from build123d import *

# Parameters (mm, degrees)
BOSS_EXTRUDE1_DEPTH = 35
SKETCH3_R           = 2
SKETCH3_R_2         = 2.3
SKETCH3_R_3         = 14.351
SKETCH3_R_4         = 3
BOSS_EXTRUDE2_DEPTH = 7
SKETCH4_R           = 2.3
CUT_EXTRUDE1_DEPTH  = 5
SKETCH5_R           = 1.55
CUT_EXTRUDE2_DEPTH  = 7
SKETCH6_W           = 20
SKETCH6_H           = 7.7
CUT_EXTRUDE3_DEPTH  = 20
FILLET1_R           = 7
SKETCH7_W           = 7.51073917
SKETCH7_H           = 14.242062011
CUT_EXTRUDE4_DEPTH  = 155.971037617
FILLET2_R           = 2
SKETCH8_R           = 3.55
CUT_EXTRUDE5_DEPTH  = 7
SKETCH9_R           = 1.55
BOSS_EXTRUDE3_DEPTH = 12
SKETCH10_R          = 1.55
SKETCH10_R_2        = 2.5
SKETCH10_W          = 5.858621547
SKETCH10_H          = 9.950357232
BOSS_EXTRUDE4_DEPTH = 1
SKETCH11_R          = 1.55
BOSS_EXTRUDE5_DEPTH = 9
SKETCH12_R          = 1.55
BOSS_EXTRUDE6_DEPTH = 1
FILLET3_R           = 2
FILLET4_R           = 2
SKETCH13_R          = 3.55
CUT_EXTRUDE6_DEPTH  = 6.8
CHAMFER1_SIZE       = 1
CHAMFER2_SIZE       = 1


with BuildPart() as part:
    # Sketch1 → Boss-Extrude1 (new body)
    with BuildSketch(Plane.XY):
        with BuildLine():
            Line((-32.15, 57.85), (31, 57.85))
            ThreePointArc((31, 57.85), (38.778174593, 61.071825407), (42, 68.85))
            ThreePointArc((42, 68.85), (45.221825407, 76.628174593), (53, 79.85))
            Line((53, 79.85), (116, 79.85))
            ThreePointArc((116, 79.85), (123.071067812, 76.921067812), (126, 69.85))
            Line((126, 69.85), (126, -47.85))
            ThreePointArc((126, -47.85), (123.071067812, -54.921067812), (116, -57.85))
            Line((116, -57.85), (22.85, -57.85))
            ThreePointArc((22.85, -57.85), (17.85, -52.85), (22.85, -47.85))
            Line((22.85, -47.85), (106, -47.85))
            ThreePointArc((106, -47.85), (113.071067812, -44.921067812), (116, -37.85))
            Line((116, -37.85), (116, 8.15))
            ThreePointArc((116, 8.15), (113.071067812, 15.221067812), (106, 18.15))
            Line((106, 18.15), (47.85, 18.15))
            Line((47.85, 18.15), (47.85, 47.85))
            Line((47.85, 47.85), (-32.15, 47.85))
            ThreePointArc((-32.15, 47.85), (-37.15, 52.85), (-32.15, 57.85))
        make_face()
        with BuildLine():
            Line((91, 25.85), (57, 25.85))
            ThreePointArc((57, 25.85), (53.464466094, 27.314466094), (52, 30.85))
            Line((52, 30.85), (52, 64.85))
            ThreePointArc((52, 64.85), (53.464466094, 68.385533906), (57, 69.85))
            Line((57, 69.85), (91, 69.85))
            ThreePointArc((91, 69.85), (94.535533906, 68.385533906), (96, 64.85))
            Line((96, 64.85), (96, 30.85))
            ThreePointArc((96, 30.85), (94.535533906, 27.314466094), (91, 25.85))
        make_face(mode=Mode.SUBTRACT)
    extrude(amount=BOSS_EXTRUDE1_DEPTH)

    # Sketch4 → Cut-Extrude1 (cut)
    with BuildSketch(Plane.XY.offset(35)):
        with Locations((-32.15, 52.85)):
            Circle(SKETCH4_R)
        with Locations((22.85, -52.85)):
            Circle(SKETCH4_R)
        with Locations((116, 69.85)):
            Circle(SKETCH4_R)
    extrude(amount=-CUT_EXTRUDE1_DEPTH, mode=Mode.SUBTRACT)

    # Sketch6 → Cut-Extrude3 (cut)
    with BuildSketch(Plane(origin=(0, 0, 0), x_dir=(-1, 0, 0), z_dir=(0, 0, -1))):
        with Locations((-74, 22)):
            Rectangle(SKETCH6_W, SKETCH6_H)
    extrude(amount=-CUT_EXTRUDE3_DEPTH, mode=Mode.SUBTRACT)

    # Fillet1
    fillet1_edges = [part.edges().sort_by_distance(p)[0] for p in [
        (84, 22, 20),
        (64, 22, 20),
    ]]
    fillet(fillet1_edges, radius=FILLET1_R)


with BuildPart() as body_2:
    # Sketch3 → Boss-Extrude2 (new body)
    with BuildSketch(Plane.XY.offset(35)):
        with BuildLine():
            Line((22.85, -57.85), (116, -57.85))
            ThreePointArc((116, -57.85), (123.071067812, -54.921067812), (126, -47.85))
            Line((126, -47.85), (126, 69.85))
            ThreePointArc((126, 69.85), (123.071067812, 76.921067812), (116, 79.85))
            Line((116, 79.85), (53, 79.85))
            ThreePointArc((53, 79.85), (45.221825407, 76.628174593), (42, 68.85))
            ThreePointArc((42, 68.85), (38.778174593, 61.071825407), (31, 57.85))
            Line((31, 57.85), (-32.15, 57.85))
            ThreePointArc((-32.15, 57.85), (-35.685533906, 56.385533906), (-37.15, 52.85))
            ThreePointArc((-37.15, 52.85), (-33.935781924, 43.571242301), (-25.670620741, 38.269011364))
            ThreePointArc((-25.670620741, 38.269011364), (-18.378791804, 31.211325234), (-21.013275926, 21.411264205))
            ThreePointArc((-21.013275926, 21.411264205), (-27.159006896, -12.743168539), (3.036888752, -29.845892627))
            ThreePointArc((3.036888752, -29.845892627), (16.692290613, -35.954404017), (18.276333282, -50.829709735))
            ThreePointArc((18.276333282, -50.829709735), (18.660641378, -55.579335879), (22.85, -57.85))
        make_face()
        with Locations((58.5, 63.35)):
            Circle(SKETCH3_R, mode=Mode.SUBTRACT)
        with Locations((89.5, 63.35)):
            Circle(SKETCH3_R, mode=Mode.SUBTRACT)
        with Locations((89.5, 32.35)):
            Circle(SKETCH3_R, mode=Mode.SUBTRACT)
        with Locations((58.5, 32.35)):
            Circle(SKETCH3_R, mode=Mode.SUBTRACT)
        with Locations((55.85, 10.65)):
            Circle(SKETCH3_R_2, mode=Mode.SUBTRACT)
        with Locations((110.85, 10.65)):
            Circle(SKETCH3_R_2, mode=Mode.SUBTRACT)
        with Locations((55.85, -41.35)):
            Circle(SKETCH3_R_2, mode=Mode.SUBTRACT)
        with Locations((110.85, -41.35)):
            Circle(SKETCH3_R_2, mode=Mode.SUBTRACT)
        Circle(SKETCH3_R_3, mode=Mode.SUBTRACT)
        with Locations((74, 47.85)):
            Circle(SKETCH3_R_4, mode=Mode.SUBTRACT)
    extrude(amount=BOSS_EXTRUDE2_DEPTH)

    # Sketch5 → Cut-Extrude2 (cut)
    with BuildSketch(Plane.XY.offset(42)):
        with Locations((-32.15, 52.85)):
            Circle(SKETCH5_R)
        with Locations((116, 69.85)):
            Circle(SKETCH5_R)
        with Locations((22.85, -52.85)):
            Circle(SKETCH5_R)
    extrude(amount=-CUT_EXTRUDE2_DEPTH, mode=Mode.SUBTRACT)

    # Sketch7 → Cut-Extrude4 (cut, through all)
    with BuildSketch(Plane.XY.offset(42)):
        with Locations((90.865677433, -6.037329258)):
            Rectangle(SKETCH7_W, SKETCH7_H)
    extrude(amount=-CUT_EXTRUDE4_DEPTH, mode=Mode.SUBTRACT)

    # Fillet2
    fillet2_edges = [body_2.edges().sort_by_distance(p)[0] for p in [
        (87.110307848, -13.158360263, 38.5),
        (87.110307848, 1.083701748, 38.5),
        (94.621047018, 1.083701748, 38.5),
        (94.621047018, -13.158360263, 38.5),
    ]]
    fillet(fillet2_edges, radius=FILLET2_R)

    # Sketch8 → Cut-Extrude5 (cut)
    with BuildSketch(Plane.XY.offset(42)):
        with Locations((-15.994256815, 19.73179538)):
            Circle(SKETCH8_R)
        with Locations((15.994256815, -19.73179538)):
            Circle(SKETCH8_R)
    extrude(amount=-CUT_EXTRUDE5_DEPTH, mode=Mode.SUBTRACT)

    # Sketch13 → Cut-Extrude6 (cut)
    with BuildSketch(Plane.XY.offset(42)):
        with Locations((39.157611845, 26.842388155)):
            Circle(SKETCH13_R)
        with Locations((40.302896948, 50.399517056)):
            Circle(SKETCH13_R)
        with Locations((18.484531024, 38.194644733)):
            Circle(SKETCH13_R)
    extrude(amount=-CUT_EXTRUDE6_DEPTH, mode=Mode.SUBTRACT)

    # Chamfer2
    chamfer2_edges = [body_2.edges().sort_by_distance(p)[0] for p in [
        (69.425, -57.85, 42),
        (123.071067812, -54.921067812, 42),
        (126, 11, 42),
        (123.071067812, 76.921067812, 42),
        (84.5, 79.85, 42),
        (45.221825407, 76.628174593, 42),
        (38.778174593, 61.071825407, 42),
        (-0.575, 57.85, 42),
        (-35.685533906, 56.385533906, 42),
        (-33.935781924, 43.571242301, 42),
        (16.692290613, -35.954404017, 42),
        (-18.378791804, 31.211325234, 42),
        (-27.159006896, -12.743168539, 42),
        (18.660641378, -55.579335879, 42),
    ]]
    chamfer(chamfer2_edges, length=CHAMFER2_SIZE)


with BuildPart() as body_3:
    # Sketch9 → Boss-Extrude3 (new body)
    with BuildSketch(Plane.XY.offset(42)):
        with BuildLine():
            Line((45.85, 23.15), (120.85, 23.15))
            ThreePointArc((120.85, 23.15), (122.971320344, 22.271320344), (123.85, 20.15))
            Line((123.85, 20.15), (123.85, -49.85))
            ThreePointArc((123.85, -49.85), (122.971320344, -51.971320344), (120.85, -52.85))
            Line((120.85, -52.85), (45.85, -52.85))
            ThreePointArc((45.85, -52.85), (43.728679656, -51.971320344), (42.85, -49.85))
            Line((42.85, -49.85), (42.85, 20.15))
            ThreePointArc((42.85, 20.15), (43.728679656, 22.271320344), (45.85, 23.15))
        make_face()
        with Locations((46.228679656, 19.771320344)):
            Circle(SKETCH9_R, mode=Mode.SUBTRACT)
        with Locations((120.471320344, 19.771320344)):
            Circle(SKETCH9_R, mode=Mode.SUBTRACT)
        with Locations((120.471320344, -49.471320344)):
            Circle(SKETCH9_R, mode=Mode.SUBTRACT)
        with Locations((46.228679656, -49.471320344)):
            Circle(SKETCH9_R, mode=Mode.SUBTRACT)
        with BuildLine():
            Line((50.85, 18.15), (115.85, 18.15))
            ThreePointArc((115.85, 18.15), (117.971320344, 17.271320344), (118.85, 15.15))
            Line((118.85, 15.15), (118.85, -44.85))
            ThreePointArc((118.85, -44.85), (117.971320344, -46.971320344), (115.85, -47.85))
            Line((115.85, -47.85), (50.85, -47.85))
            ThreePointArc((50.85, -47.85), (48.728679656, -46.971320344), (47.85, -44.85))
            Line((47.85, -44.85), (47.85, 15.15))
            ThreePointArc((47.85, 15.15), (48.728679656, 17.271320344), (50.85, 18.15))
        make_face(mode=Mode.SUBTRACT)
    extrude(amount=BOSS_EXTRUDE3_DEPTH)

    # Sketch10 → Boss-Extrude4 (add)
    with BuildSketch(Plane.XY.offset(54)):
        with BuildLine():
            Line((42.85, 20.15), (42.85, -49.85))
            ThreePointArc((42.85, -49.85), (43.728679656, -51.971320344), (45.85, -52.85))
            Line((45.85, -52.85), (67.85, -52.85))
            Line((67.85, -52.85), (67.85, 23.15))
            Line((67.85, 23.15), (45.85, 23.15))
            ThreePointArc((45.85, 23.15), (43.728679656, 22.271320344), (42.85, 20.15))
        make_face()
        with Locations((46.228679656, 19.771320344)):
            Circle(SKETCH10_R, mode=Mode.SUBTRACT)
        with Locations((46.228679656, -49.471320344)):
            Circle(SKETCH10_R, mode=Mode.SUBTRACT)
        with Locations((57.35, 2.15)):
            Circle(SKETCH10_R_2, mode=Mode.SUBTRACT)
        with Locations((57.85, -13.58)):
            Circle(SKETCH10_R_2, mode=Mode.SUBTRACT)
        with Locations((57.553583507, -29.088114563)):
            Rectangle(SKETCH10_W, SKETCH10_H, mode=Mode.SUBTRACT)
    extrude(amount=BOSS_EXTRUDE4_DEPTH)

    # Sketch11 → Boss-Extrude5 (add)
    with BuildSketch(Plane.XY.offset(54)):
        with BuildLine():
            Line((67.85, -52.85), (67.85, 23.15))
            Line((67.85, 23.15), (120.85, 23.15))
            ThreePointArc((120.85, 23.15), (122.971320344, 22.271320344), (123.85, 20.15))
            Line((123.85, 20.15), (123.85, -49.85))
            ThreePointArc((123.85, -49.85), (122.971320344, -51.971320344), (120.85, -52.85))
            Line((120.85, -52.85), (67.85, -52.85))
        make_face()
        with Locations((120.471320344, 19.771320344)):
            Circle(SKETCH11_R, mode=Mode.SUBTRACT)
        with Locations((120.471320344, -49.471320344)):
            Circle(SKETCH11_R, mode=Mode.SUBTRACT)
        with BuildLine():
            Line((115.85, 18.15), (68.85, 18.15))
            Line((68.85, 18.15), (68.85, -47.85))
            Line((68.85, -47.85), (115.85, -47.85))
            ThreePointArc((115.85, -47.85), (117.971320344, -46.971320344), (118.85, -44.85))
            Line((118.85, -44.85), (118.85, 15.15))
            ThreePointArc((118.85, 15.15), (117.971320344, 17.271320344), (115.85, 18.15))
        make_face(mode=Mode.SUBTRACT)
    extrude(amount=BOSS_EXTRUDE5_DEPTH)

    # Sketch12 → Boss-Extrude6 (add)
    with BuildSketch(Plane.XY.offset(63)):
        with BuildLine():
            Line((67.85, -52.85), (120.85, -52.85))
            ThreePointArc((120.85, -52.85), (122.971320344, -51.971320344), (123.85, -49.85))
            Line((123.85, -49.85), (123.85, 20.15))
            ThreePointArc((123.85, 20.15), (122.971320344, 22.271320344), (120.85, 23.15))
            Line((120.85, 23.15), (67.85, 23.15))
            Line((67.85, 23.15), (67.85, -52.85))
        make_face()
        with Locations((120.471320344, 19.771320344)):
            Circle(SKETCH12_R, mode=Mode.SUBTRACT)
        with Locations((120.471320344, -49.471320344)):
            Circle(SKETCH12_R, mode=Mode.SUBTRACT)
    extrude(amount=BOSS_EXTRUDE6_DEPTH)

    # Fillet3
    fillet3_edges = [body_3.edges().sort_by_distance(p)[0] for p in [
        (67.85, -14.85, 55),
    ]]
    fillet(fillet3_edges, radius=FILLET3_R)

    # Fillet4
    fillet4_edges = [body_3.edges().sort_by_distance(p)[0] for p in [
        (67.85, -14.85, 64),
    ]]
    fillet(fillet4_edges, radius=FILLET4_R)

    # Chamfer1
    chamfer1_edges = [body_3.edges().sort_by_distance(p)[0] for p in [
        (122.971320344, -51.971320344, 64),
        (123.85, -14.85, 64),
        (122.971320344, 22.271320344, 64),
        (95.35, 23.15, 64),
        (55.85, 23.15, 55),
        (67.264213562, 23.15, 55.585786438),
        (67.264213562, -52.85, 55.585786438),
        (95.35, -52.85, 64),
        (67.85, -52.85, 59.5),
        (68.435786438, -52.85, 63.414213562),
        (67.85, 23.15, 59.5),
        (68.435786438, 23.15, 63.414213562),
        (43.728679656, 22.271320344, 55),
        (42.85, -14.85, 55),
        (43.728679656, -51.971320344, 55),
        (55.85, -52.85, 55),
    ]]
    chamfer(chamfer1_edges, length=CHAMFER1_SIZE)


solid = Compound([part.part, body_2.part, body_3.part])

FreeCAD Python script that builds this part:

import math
import FreeCAD as App
import Part
import Sketcher
from FreeCAD import Vector
Q = App.Units.Quantity


def edges_at(feature, points):
    """Names of the edges that pass closest to the given points."""
    edges = feature.Shape.Edges
    near = lambda p: min(range(len(edges)), key=lambda i: edges[i].distToShape(Part.Vertex(*p))[0])
    return sorted({f"Edge{near(p) + 1}" for p in points})

doc = App.newDocument("Part")
params = doc.addObject("Spreadsheet::Sheet", "Params")
for row, (alias, value) in enumerate([
    ("sketch1_radius", "5 mm"),
    ("sketch1_radius2", "11 mm"),
    ("sketch1_width", "80 mm"),
    ("sketch1_width2", "63 mm"),
    ("sketch1_width3", "34 mm"),
    ("pad1_length", "35 mm"),
    ("sketch2_diameter", "4.6 mm"),
    ("pocket1_length", "5 mm"),
    ("sketch3_width", "20 mm"),
    ("sketch3_height", "7.7 mm"),
    ("pocket2_length", "20 mm"),
    ("fillet_radius", "7 mm"),
    ("sketch4_diameter", "4 mm"),
    ("sketch4_diameter2", "6 mm"),
    ("sketch4_radius", "10 mm"),
    ("sketch4_radius2", "11 mm"),
    ("sketch4_radius3", "5 mm"),
    ("pad2_length", "7 mm"),
    ("sketch5_diameter", "3.1 mm"),
    ("pocket3_length", "7 mm"),
    ("fillet2_radius", "2 mm"),
    ("sketch7_diameter", "7.1 mm"),
    ("pocket5_length", "7 mm"),
    ("sketch8_diameter", "7.1 mm"),
    ("pocket6_length", "6.8 mm"),
    ("chamfer_size", "1 mm"),
    ("sketch9_radius", "3 mm"),
    ("sketch9_diameter", "3.1 mm"),
    ("sketch9_width", "75 mm"),
    ("sketch9_width2", "65 mm"),
    ("sketch9_height", "70 mm"),
    ("pad3_length", "12 mm"),
    ("sketch10_diameter", "5 mm"),
    ("sketch10_radius", "3 mm"),
    ("sketch10_diameter2", "3.1 mm"),
    ("sketch10_width", "22 mm"),
    ("sketch10_height", "70 mm"),
    ("pad4_length", "1 mm"),
    ("sketch11_radius", "3 mm"),
    ("sketch11_diameter", "3.1 mm"),
    ("sketch11_width", "53 mm"),
    ("sketch11_width2", "47 mm"),
    ("sketch11_height", "76 mm"),
    ("pad5_length", "9 mm"),
    ("sketch12_radius", "3 mm"),
    ("sketch12_diameter", "3.1 mm"),
    ("sketch12_width", "53 mm"),
    ("sketch12_height", "70 mm"),
    ("pad6_length", "1 mm"),
    ("fillet3_radius", "2 mm"),
    ("fillet4_radius", "2 mm"),
    ("chamfer2_size", "1 mm"),
], start=1):
    params.set(f"A{row}", alias)
    params.set(f"B{row}", "=" + value)
    params.setAlias(f"B{row}", alias)

body = doc.addObject("PartDesign::Body", "Body")

sketch1 = body.newObject("Sketcher::SketchObject", "Sketch")
sketch1.AttachmentSupport = (doc.getObject("XY_Plane"), [""])
sketch1.MapMode = "FlatFace"
sketch1.addGeometry([
    Part.LineSegment(Vector(31, 58, 0), Vector(-32, 58, 0)),
    Part.ArcOfCircle(Part.Circle(Vector(-32, 53, 0), Vector(0, 0, 1), 5), math.radians(90), math.radians(270)),
    Part.LineSegment(Vector(-32, 48, 0), Vector(48, 48, 0)),
    Part.LineSegment(Vector(48, 48, 0), Vector(48, 18, 0)),
    Part.LineSegment(Vector(48, 18, 0), Vector(106, 18, 0)),
    Part.ArcOfCircle(Part.Circle(Vector(106, 8, 0), Vector(0, 0, 1), 10), math.radians(0), math.radians(90)),
    Part.LineSegment(Vector(116, 8, 0), Vector(116, -38, 0)),
    Part.ArcOfCircle(Part.Circle(Vector(106, -38, 0), Vector(0, 0, 1), 10), math.radians(-90), math.radians(0)),
    Part.LineSegment(Vector(106, -48, 0), Vector(23, -48, 0)),
    Part.ArcOfCircle(Part.Circle(Vector(23, -53, 0), Vector(0, 0, 1), 5), math.radians(90), math.radians(270)),
    Part.LineSegment(Vector(23, -58, 0), Vector(116, -58, 0)),
    Part.ArcOfCircle(Part.Circle(Vector(116, -48, 0), Vector(0, 0, 1), 10), math.radians(-90), math.radians(0)),
    Part.LineSegment(Vector(126, -48, 0), Vector(126, 70, 0)),
    Part.ArcOfCircle(Part.Circle(Vector(116, 70, 0), Vector(0, 0, 1), 10), math.radians(0), math.radians(90)),
    Part.LineSegment(Vector(116, 80, 0), Vector(53, 80, 0)),
    Part.ArcOfCircle(Part.Circle(Vector(53, 69, 0), Vector(0, 0, 1), 11), math.radians(90), math.radians(180)),
    Part.ArcOfCircle(Part.Circle(Vector(31, 69, 0), Vector(0, 0, 1), 11), math.radians(-90), math.radians(0)),
    Part.LineSegment(Vector(91, 26, 0), Vector(57, 26, 0)),
    Part.ArcOfCircle(Part.Circle(Vector(57, 31, 0), Vector(0, 0, 1), 5), math.radians(180), math.radians(270)),
    Part.LineSegment(Vector(52, 31, 0), Vector(52, 65, 0)),
    Part.ArcOfCircle(Part.Circle(Vector(57, 65, 0), Vector(0, 0, 1), 5), math.radians(90), math.radians(180)),
    Part.LineSegment(Vector(57, 70, 0), Vector(91, 70, 0)),
    Part.ArcOfCircle(Part.Circle(Vector(91, 65, 0), Vector(0, 0, 1), 5), math.radians(0), math.radians(90)),
    Part.LineSegment(Vector(96, 65, 0), Vector(96, 31, 0)),
    Part.ArcOfCircle(Part.Circle(Vector(91, 31, 0), Vector(0, 0, 1), 5), math.radians(-90), math.radians(0)),
], False)
sketch1.addConstraint([
    Sketcher.Constraint("Tangent", 0, 2, 1, 1),
    Sketcher.Constraint("Tangent", 1, 2, 2, 1),
    Sketcher.Constraint("Coincident", 2, 2, 3, 1),
    Sketcher.Constraint("Coincident", 3, 2, 4, 1),
    Sketcher.Constraint("Tangent", 4, 2, 5, 2),
    Sketcher.Constraint("Tangent", 5, 1, 6, 1),
    Sketcher.Constraint("Tangent", 6, 2, 7, 2),
    Sketcher.Constraint("Tangent", 7, 1, 8, 1),
    Sketcher.Constraint("Tangent", 8, 2, 9, 1),
    Sketcher.Constraint("Tangent", 9, 2, 10, 1),
    Sketcher.Constraint("Tangent", 10, 2, 11, 1),
    Sketcher.Constraint("Tangent", 11, 2, 12, 1),
    Sketcher.Constraint("Tangent", 12, 2, 13, 1),
    Sketcher.Constraint("Tangent", 13, 2, 14, 1),
    Sketcher.Constraint("Tangent", 14, 2, 15, 1),
    Sketcher.Constraint("Tangent", 15, 2, 16, 2),
    Sketcher.Constraint("Tangent", 16, 1, 0, 1),
    Sketcher.Constraint("Tangent", 17, 2, 18, 2),
    Sketcher.Constraint("Tangent", 18, 1, 19, 1),
    Sketcher.Constraint("Tangent", 19, 2, 20, 2),
    Sketcher.Constraint("Tangent", 20, 1, 21, 1),
    Sketcher.Constraint("Tangent", 21, 2, 22, 2),
    Sketcher.Constraint("Tangent", 22, 1, 23, 1),
    Sketcher.Constraint("Tangent", 23, 2, 24, 2),
    Sketcher.Constraint("Tangent", 24, 1, 17, 1),
    Sketcher.Constraint("Horizontal", 0),
    Sketcher.Constraint("Horizontal", 2),
    Sketcher.Constraint("Vertical", 3),
    Sketcher.Constraint("Horizontal", 4),
    Sketcher.Constraint("Vertical", 6),
    Sketcher.Constraint("Horizontal", 8),
    Sketcher.Constraint("Horizontal", 10),
    Sketcher.Constraint("Vertical", 12),
    Sketcher.Constraint("Horizontal", 14),
    Sketcher.Constraint("Horizontal", 17),
    Sketcher.Constraint("Vertical", 19),
    Sketcher.Constraint("Horizontal", 21),
    Sketcher.Constraint("Vertical", 23),
    Sketcher.Constraint("Equal", 5, 7),
    Sketcher.Constraint("Equal", 1, 9),
    Sketcher.Constraint("Equal", 7, 11),
    Sketcher.Constraint("Equal", 11, 13),
    Sketcher.Constraint("Equal", 15, 16),
    Sketcher.Constraint("Equal", 9, 18),
    Sketcher.Constraint("Equal", 18, 20),
    Sketcher.Constraint("Equal", 20, 22),
    Sketcher.Constraint("Equal", 22, 24),
    Sketcher.Constraint("Horizontal", 15, 3, 16, 3),
    Sketcher.Constraint("Horizontal", 11, 3, 7, 1),
    Sketcher.Constraint("Horizontal", 12, 2, 20, 1),
    Sketcher.Constraint("Vertical", 13, 3, 5, 1),
    Sketcher.Constraint("Equal", 21, 19),
    Sketcher.Constraint("Radius", 1, Q("5 mm")),
    Sketcher.Constraint("Radius", 15, Q("11 mm")),
    Sketcher.Constraint("DistanceX", 2, 1, 2, 2, Q("80 mm")),
    Sketcher.Constraint("DistanceX", 14, 2, 14, 1, Q("63 mm")),
    Sketcher.Constraint("DistanceX", 17, 2, 17, 1, Q("34 mm")),
    Sketcher.Constraint("DistanceY", 6, 2, 6, 1, Q("46 mm")),
    Sketcher.Constraint("DistanceY", 3, 2, 3, 1, Q("29.7 mm")),
    Sketcher.Constraint("DistanceX", -1, 1, 5, 3, Q("106 mm")),
    Sketcher.Constraint("DistanceX", -1, 1, 18, 3, Q("57 mm")),
    Sketcher.Constraint("DistanceX", 1, 3, 9, 3, Q("55 mm")),
    Sketcher.Constraint("DistanceX", 0, 2, 0, 1, Q("63.15 mm")),
    Sketcher.Constraint("DistanceY", -1, 1, 1, 3, Q("52.85 mm")),
])
sketch1.setExpression("Constraints[52]", "Params.sketch1_radius")
sketch1.setExpression("Constraints[53]", "Params.sketch1_radius2")
sketch1.setExpression("Constraints[54]", "Params.sketch1_width")
sketch1.setExpression("Constraints[55]", "Params.sketch1_width2")
sketch1.setExpression("Constraints[56]", "Params.sketch1_width3")
pad1 = body.newObject("PartDesign::Pad", "Pad")
pad1.Profile = sketch1
pad1.setExpression("Length", "Params.pad1_length")

sketch2 = body.newObject("Sketcher::SketchObject", "Sketch001")
sketch2.AttachmentSupport = (doc.getObject("XY_Plane"), [""])
sketch2.MapMode = "FlatFace"
sketch2.AttachmentOffset = App.Placement(Vector(0, 0, 35), App.Rotation())
sketch2.addGeometry([
    Part.Circle(Vector(-32.1, 52.9, 0), Vector(0, 0, 1), 2.3),
    Part.Circle(Vector(22.9, -52.9, 0), Vector(0, 0, 1), 2.3),
    Part.Circle(Vector(116, 69.8, 0), Vector(0, 0, 1), 2.3),
], False)
sketch2.addConstraint([
    Sketcher.Constraint("Equal", 0, 1),
    Sketcher.Constraint("Equal", 1, 2),
    Sketcher.Constraint("Diameter", 0, Q("4.6 mm")),
    Sketcher.Constraint("DistanceX", -1, 1, 2, 3, Q("116 mm")),
    Sketcher.Constraint("DistanceX", 0, 3, 1, 3, Q("55 mm")),
    Sketcher.Constraint("DistanceY", 0, 3, 2, 3, Q("17 mm")),
    Sketcher.Constraint("DistanceY", 1, 3, 0, 3, Q("105.7 mm")),
    Sketcher.Constraint("DistanceX", 0, 3, -1, 1, Q("32.15 mm")),
    Sketcher.Constraint("DistanceY", -1, 1, 0, 3, Q("52.85 mm")),
])
sketch2.setExpression("Constraints[2]", "Params.sketch2_diameter")
pocket1 = body.newObject("PartDesign::Pocket", "Pocket")
pocket1.Profile = sketch2
pocket1.setExpression("Length", "Params.pocket1_length")

sketch3 = body.newObject("Sketcher::SketchObject", "Sketch002")
sketch3.AttachmentSupport = (doc.getObject("XY_Plane"), [""])
sketch3.MapMode = "FlatFace"
sketch3.addGeometry([
    Part.LineSegment(Vector(84, 26, 0), Vector(84, 18, 0)),
    Part.LineSegment(Vector(84, 18, 0), Vector(64, 18, 0)),
    Part.LineSegment(Vector(64, 18, 0), Vector(64, 26, 0)),
    Part.LineSegment(Vector(64, 26, 0), Vector(84, 26, 0)),
], False)
sketch3.addConstraint([
    Sketcher.Constraint("Coincident", 0, 2, 1, 1),
    Sketcher.Constraint("Coincident", 1, 2, 2, 1),
    Sketcher.Constraint("Coincident", 2, 2, 3, 1),
    Sketcher.Constraint("Coincident", 3, 2, 0, 1),
    Sketcher.Constraint("Vertical", 0),
    Sketcher.Constraint("Horizontal", 1),
    Sketcher.Constraint("Vertical", 2),
    Sketcher.Constraint("Horizontal", 3),
    Sketcher.Constraint("DistanceX", 1, 2, 1, 1, Q("20 mm")),
    Sketcher.Constraint("DistanceY", 0, 2, 0, 1, Q("7.7 mm")),
    Sketcher.Constraint("DistanceX", -1, 1, 0, 2, Q("84 mm")),
    Sketcher.Constraint("DistanceY", -1, 1, 0, 2, Q("18.15 mm")),
])
sketch3.setExpression("Constraints[8]", "Params.sketch3_width")
sketch3.setExpression("Constraints[9]", "Params.sketch3_height")
pocket2 = body.newObject("PartDesign::Pocket", "Pocket001")
pocket2.Profile = sketch3
pocket2.setExpression("Length", "Params.pocket2_length")
pocket2.Reversed = True
doc.recompute()

fillet = body.newObject("PartDesign::Fillet", "Fillet")
fillet.Base = (pocket2, edges_at(pocket2, [(84, 22, 20), (64, 22, 20)]))
fillet.setExpression("Radius", "Params.fillet_radius")
body2 = doc.addObject("PartDesign::Body", "Body001")

sketch4 = body2.newObject("Sketcher::SketchObject", "Sketch003")
sketch4.AttachmentSupport = (doc.getObject("XY_Plane001"), [""])
sketch4.MapMode = "FlatFace"
sketch4.AttachmentOffset = App.Placement(Vector(0, 0, 35), App.Rotation())
sketch4.addGeometry([
    Part.LineSegment(Vector(22.9, -57.9, 0), Vector(116, -57.9, 0)),
    Part.ArcOfCircle(Part.Circle(Vector(116, -47.9, 0), Vector(0, 0, 1), 10), math.radians(-90), math.radians(0)),
    Part.LineSegment(Vector(126, -47.9, 0), Vector(126, 69.8, 0)),
    Part.ArcOfCircle(Part.Circle(Vector(116, 69.8, 0), Vector(0, 0, 1), 10), math.radians(0), math.radians(90)),
    Part.LineSegment(Vector(116, 79.8, 0), Vector(53, 79.8, 0)),
    Part.ArcOfCircle(Part.Circle(Vector(53, 68.8, 0), Vector(0, 0, 1), 11), math.radians(90), math.radians(180)),
    Part.ArcOfCircle(Part.Circle(Vector(31, 68.8, 0), Vector(0, 0, 1), 11), math.radians(-90), math.radians(0)),
    Part.LineSegment(Vector(31, 57.9, 0), Vector(-32.1, 57.9, 0)),
    Part.ArcOfCircle(Part.Circle(Vector(-32.1, 52.9, 0), Vector(0, 0, 1), 5), math.radians(90), math.radians(180)),
    Part.ArcOfCircle(Part.Circle(Vector(-22.1, 52.9, 0), Vector(0, 0, 1), 15), math.radians(180), math.radians(256)),
    Part.ArcOfCircle(Part.Circle(Vector(-28, 28.5, 0), Vector(0, 0, 1), 10), math.radians(-46), math.radians(76)),
    Part.ArcOfCircle(Part.Circle(Vector(0, 0, 0), Vector(0, 0, 1), 30), math.radians(134), math.radians(276)),
    Part.ArcOfCircle(Part.Circle(Vector(4.6, -44.8, 0), Vector(0, 0, 1), 15), math.radians(-24), math.radians(96)),
    Part.ArcOfCircle(Part.Circle(Vector(22.8, -52.9, 0), Vector(0, 0, 1), 5), math.radians(156), math.radians(270)),
    Part.Circle(Vector(0, 0, 0), Vector(0, 0, 1), 14.4),
    Part.Circle(Vector(55.9, -41.4, 0), Vector(0, 0, 1), 2.3),
    Part.Circle(Vector(110.8, -41.4, 0), Vector(0, 0, 1), 2.3),
    Part.Circle(Vector(55.9, 10.7, 0), Vector(0, 0, 1), 2.3),
    Part.Circle(Vector(110.8, 10.7, 0), Vector(0, 0, 1), 2.3),
    Part.Circle(Vector(58.5, 32.4, 0), Vector(0, 0, 1), 2),
    Part.Circle(Vector(89.5, 32.4, 0), Vector(0, 0, 1), 2),
    Part.Circle(Vector(74, 47.9, 0), Vector(0, 0, 1), 3),
    Part.Circle(Vector(58.5, 63.4, 0), Vector(0, 0, 1), 2),
    Part.Circle(Vector(89.5, 63.4, 0), Vector(0, 0, 1), 2),
], False)
sketch4.addConstraint([
    Sketcher.Constraint("Tangent", 0, 2, 1, 1),
    Sketcher.Constraint("Tangent", 1, 2, 2, 1),
    Sketcher.Constraint("Tangent", 2, 2, 3, 1),
    Sketcher.Constraint("Tangent", 3, 2, 4, 1),
    Sketcher.Constraint("Tangent", 4, 2, 5, 1),
    Sketcher.Constraint("Tangent", 5, 2, 6, 2),
    Sketcher.Constraint("Tangent", 6, 1, 7, 1),
    Sketcher.Constraint("Tangent", 7, 2, 8, 1),
    Sketcher.Constraint("Tangent", 8, 2, 9, 1),
    Sketcher.Constraint("Tangent", 9, 2, 10, 2),
    Sketcher.Constraint("Tangent", 10, 1, 11, 1),
    Sketcher.Constraint("Tangent", 11, 2, 12, 2),
    Sketcher.Constraint("Tangent", 12, 1, 13, 1),
    Sketcher.Constraint("Tangent", 13, 2, 0, 1),
    Sketcher.Constraint("Horizontal", 0),
    Sketcher.Constraint("Vertical", 2),
    Sketcher.Constraint("Horizontal", 4),
    Sketcher.Constraint("Horizontal", 7),
    Sketcher.Constraint("Coincident", 11, 3, -1, 1),
    Sketcher.Constraint("Coincident", 14, 3, -1, 1),
    Sketcher.Constraint("Equal", 1, 3),
    Sketcher.Constraint("Equal", 5, 6),
    Sketcher.Constraint("Equal", 3, 10),
    Sketcher.Constraint("Equal", 9, 12),
    Sketcher.Constraint("Equal", 8, 13),
    Sketcher.Constraint("Equal", 15, 16),
    Sketcher.Constraint("Equal", 16, 17),
    Sketcher.Constraint("Equal", 17, 18),
    Sketcher.Constraint("Equal", 19, 20),
    Sketcher.Constraint("Equal", 20, 22),
    Sketcher.Constraint("Equal", 22, 23),
    Sketcher.Constraint("Horizontal", 5, 3, 6, 3),
    Sketcher.Constraint("Horizontal", 8, 3, 9, 3),
    Sketcher.Constraint("Horizontal", 15, 3, 16, 3),
    Sketcher.Constraint("Horizontal", 17, 3, 18, 3),
    Sketcher.Constraint("Horizontal", 19, 3, 20, 3),
    Sketcher.Constraint("Horizontal", 22, 3, 23, 3),
    Sketcher.Constraint("Vertical", 15, 3, 17, 3),
    Sketcher.Constraint("Vertical", 16, 3, 18, 3),
    Sketcher.Constraint("Vertical", 19, 3, 22, 3),
    Sketcher.Constraint("Vertical", 20, 3, 23, 3),
    Sketcher.Constraint("Diameter", 19, Q("4 mm")),
    Sketcher.Constraint("Diameter", 21, Q("6 mm")),
    Sketcher.Constraint("Radius", 1, Q("10 mm")),
    Sketcher.Constraint("Radius", 5, Q("11 mm")),
    Sketcher.Constraint("Radius", 8, Q("5 mm")),
    Sketcher.Constraint("Radius", 9, Q("15 mm")),
    Sketcher.Constraint("Radius", 11, Q("30 mm")),
    Sketcher.Constraint("Diameter", 15, Q("4.6 mm")),
    Sketcher.Constraint("DistanceX", 4, 2, 4, 1, Q("63 mm")),
    Sketcher.Constraint("Diameter", 14, Q("28.702 mm")),
    Sketcher.Constraint("DistanceY", 2, 1, 2, 2, Q("117.7 mm")),
    Sketcher.Constraint("DistanceX", -1, 1, 1, 3, Q("116 mm")),
    Sketcher.Constraint("DistanceX", -1, 1, 21, 3, Q("74 mm")),
    Sketcher.Constraint("DistanceX", 9, 3, 13, 3, Q("45 mm")),
    Sketcher.Constraint("DistanceX", 13, 3, 15, 3, Q("33 mm")),
    Sketcher.Constraint("DistanceX", 15, 3, 16, 3, Q("55 mm")),
    Sketcher.Constraint("DistanceY", 15, 3, 17, 3, Q("52 mm")),
    Sketcher.Constraint("DistanceX", 19, 3, 20, 3, Q("31 mm")),
    Sketcher.Constraint("DistanceY", 21, 3, 5, 3, Q("21 mm")),
    Sketcher.Constraint("DistanceY", 19, 3, 22, 3, Q("31 mm")),
    Sketcher.Constraint("DistanceX", 0, 1, 0, 2, Q("93.15 mm")),
    Sketcher.Constraint("DistanceX", -1, 1, 19, 3, Q("58.5 mm")),
    Sketcher.Constraint("DistanceY", 13, 3, 15, 3, Q("11.5 mm")),
    Sketcher.Constraint("DistanceY", 17, 3, 19, 3, Q("21.7 mm")),
    Sketcher.Constraint("DistanceY", 1, 3, -1, 1, Q("47.85 mm")),
])
sketch4.setExpression("Constraints[41]", "Params.sketch4_diameter")
sketch4.setExpression("Constraints[42]", "Params.sketch4_diameter2")
sketch4.setExpression("Constraints[43]", "Params.sketch4_radius")
sketch4.setExpression("Constraints[44]", "Params.sketch4_radius2")
sketch4.setExpression("Constraints[45]", "Params.sketch4_radius3")
pad2 = body2.newObject("PartDesign::Pad", "Pad001")
pad2.Profile = sketch4
pad2.setExpression("Length", "Params.pad2_length")

sketch5 = body2.newObject("Sketcher::SketchObject", "Sketch004")
sketch5.AttachmentSupport = (doc.getObject("XY_Plane001"), [""])
sketch5.MapMode = "FlatFace"
sketch5.AttachmentOffset = App.Placement(Vector(0, 0, 42), App.Rotation())
sketch5.addGeometry([
    Part.Circle(Vector(-32.1, 52.9, 0), Vector(0, 0, 1), 1.6),
    Part.Circle(Vector(116, 69.8, 0), Vector(0, 0, 1), 1.6),
    Part.Circle(Vector(22.9, -52.9, 0), Vector(0, 0, 1), 1.6),
], False)
sketch5.addConstraint([
    Sketcher.Constraint("Equal", 0, 1),
    Sketcher.Constraint("Equal", 1, 2),
    Sketcher.Constraint("Diameter", 0, Q("3.1 mm")),
    Sketcher.Constraint("DistanceX", -1, 1, 1, 3, Q("116 mm")),
    Sketcher.Constraint("DistanceY", 0, 3, 1, 3, Q("17 mm")),
    Sketcher.Constraint("DistanceX", 0, 3, 2, 3, Q("55 mm")),
    Sketcher.Constraint("DistanceY", 2, 3, 0, 3, Q("105.7 mm")),
    Sketcher.Constraint("DistanceX", 0, 3, -1, 1, Q("32.15 mm")),
    Sketcher.Constraint("DistanceY", -1, 1, 0, 3, Q("52.85 mm")),
])
sketch5.setExpression("Constraints[2]", "Params.sketch5_diameter")
pocket3 = body2.newObject("PartDesign::Pocket", "Pocket002")
pocket3.Profile = sketch5
pocket3.setExpression("Length", "Params.pocket3_length")

sketch6 = body2.newObject("Sketcher::SketchObject", "Sketch005")
sketch6.AttachmentSupport = (doc.getObject("XY_Plane001"), [""])
sketch6.MapMode = "FlatFace"
sketch6.AttachmentOffset = App.Placement(Vector(0, 0, 42), App.Rotation())
sketch6.addGeometry([
    Part.LineSegment(Vector(87, 1, 0), Vector(87, -13, 0)),
    Part.LineSegment(Vector(87, -13, 0), Vector(95, -13, 0)),
    Part.LineSegment(Vector(95, -13, 0), Vector(95, 1, 0)),
    Part.LineSegment(Vector(95, 1, 0), Vector(87, 1, 0)),
], False)
sketch6.addConstraint([
    Sketcher.Constraint("Coincident", 0, 2, 1, 1),
    Sketcher.Constraint("Coincident", 1, 2, 2, 1),
    Sketcher.Constraint("Coincident", 2, 2, 3, 1),
    Sketcher.Constraint("Coincident", 3, 2, 0, 1),
    Sketcher.Constraint("Vertical", 0),
    Sketcher.Constraint("Horizontal", 1),
    Sketcher.Constraint("Vertical", 2),
    Sketcher.Constraint("Horizontal", 3),
    Sketcher.Constraint("DistanceX", 1, 1, 1, 2, Q("7.510739 mm")),
    Sketcher.Constraint("DistanceY", -1, 1, 2, 2, Q("1.083702 mm")),
    Sketcher.Constraint("DistanceY", 0, 2, 0, 1, Q("14.242062 mm")),
    Sketcher.Constraint("DistanceX", -1, 1, 0, 2, Q("87.110308 mm")),
])
pocket4 = body2.newObject("PartDesign::Pocket", "Pocket003")
pocket4.Profile = sketch6
pocket4.Type = "ThroughAll"
doc.recompute()

fillet2 = body2.newObject("PartDesign::Fillet", "Fillet001")
fillet2.Base = (pocket4, edges_at(pocket4, [
    (87.11, -13.158, 38.5),
    (87.11, 1.084, 38.5),
    (94.621, 1.084, 38.5),
    (94.621, -13.158, 38.5),
]))
fillet2.setExpression("Radius", "Params.fillet2_radius")

sketch7 = body2.newObject("Sketcher::SketchObject", "Sketch006")
sketch7.AttachmentSupport = (doc.getObject("XY_Plane001"), [""])
sketch7.MapMode = "FlatFace"
sketch7.AttachmentOffset = App.Placement(Vector(0, 0, 42), App.Rotation())
sketch7.addGeometry([
    Part.Circle(Vector(-16, 19.7, 0), Vector(0, 0, 1), 3.5),
    Part.Circle(Vector(16, -19.7, 0), Vector(0, 0, 1), 3.5),
], False)
sketch7.addConstraint([
    Sketcher.Constraint("Equal", 0, 1),
    Sketcher.Constraint("Symmetric", 0, 3, 1, 3, -1, 1),
    Sketcher.Constraint("Diameter", 0, Q("7.1 mm")),
    Sketcher.Constraint("DistanceY", 1, 3, 0, 3, Q("39.463591 mm")),
    Sketcher.Constraint("DistanceX", 0, 3, -1, 1, Q("15.994257 mm")),
])
sketch7.setExpression("Constraints[2]", "Params.sketch7_diameter")
pocket5 = body2.newObject("PartDesign::Pocket", "Pocket004")
pocket5.Profile = sketch7
pocket5.setExpression("Length", "Params.pocket5_length")

sketch8 = body2.newObject("Sketcher::SketchObject", "Sketch007")
sketch8.AttachmentSupport = (doc.getObject("XY_Plane001"), [""])
sketch8.MapMode = "FlatFace"
sketch8.AttachmentOffset = App.Placement(Vector(0, 0, 42), App.Rotation())
sketch8.addGeometry([
    Part.Circle(Vector(39.2, 26.8, 0), Vector(0, 0, 1), 3.5),
    Part.Circle(Vector(40.3, 50.4, 0), Vector(0, 0, 1), 3.5),
    Part.Circle(Vector(18.5, 38.2, 0), Vector(0, 0, 1), 3.5),
], False)
sketch8.addConstraint([
    Sketcher.Constraint("Equal", 0, 1),
    Sketcher.Constraint("Equal", 1, 2),
    Sketcher.Constraint("Diameter", 0, Q("7.1 mm")),
    Sketcher.Constraint("DistanceX", -1, 1, 0, 3, Q("39.157612 mm")),
    Sketcher.Constraint("DistanceY", -1, 1, 0, 3, Q("26.842388 mm")),
    Sketcher.Constraint("DistanceX", -1, 1, 2, 3, Q("18.484531 mm")),
    Sketcher.Constraint("DistanceY", 0, 3, 1, 3, Q("23.557129 mm")),
    Sketcher.Constraint("DistanceX", -1, 1, 1, 3, Q("40.302897 mm")),
    Sketcher.Constraint("DistanceY", -1, 1, 2, 3, Q("38.194645 mm")),
])
sketch8.setExpression("Constraints[2]", "Params.sketch8_diameter")
pocket6 = body2.newObject("PartDesign::Pocket", "Pocket005")
pocket6.Profile = sketch8
pocket6.setExpression("Length", "Params.pocket6_length")
doc.recompute()

chamfer = body2.newObject("PartDesign::Chamfer", "Chamfer")
chamfer.Base = (pocket6, edges_at(pocket6, [
    (69.425, -57.85, 42),
    (123.071, -54.921, 42),
    (126, 11, 42),
    (123.071, 76.921, 42),
    (84.5, 79.85, 42),
    (45.222, 76.628, 42),
    (38.778, 61.072, 42),
    (-0.575, 57.85, 42),
    (-35.686, 56.386, 42),
    (-33.936, 43.571, 42),
    (16.692, -35.954, 42),
    (-18.379, 31.211, 42),
    (-27.159, -12.743, 42),
    (18.661, -55.579, 42),
]))
chamfer.setExpression("Size", "Params.chamfer_size")
body3 = doc.addObject("PartDesign::Body", "Body002")

sketch9 = body3.newObject("Sketcher::SketchObject", "Sketch008")
sketch9.AttachmentSupport = (doc.getObject("XY_Plane002"), [""])
sketch9.MapMode = "FlatFace"
sketch9.AttachmentOffset = App.Placement(Vector(0, 0, 42), App.Rotation())
sketch9.addGeometry([
    Part.LineSegment(Vector(120.8, 23.1, 0), Vector(45.9, 23.1, 0)),
    Part.ArcOfCircle(Part.Circle(Vector(45.8, 20.2, 0), Vector(0, 0, 1), 3), math.radians(90), math.radians(180)),
    Part.LineSegment(Vector(42.9, 20.1, 0), Vector(42.9, -49.9, 0)),
    Part.ArcOfCircle(Part.Circle(Vector(45.8, -49.9, 0), Vector(0, 0, 1), 3), math.radians(180), math.radians(270)),
    Part.LineSegment(Vector(45.9, -52.9, 0), Vector(120.8, -52.9, 0)),
    Part.ArcOfCircle(Part.Circle(Vector(120.9, -49.9, 0), Vector(0, 0, 1), 3), math.radians(-90), math.radians(0)),
    Part.LineSegment(Vector(123.8, -49.9, 0), Vector(123.8, 20.1, 0)),
    Part.ArcOfCircle(Part.Circle(Vector(120.9, 20.2, 0), Vector(0, 0, 1), 3), math.radians(0), math.radians(90)),
    Part.Circle(Vector(120.5, -49.5, 0), Vector(0, 0, 1), 1.6),
    Part.Circle(Vector(46.2, -49.5, 0), Vector(0, 0, 1), 1.6),
    Part.Circle(Vector(120.5, 19.8, 0), Vector(0, 0, 1), 1.6),
    Part.LineSegment(Vector(50.9, 18.1, 0), Vector(115.8, 18.1, 0)),
    Part.ArcOfCircle(Part.Circle(Vector(115.9, 15.2, 0), Vector(0, 0, 1), 3), math.radians(0), math.radians(90)),
    Part.LineSegment(Vector(118.8, 15.2, 0), Vector(118.8, -44.9, 0)),
    Part.ArcOfCircle(Part.Circle(Vector(115.9, -44.9, 0), Vector(0, 0, 1), 3), math.radians(-90), math.radians(0)),
    Part.LineSegment(Vector(115.8, -47.9, 0), Vector(50.9, -47.9, 0)),
    Part.ArcOfCircle(Part.Circle(Vector(50.8, -44.9, 0), Vector(0, 0, 1), 3), math.radians(180), math.radians(270)),
    Part.LineSegment(Vector(47.9, -44.9, 0), Vector(47.9, 15.2, 0)),
    Part.ArcOfCircle(Part.Circle(Vector(50.8, 15.2, 0), Vector(0, 0, 1), 3), math.radians(90), math.radians(180)),
    Part.Circle(Vector(46.2, 19.8, 0), Vector(0, 0, 1), 1.6),
], False)
sketch9.addConstraint([
    Sketcher.Constraint("Tangent", 0, 2, 1, 1),
    Sketcher.Constraint("Tangent", 1, 2, 2, 1),
    Sketcher.Constraint("Tangent", 2, 2, 3, 1),
    Sketcher.Constraint("Tangent", 3, 2, 4, 1),
    Sketcher.Constraint("Tangent", 4, 2, 5, 1),
    Sketcher.Constraint("Tangent", 5, 2, 6, 1),
    Sketcher.Constraint("Tangent", 6, 2, 7, 1),
    Sketcher.Constraint("Tangent", 7, 2, 0, 1),
    Sketcher.Constraint("Tangent", 11, 2, 12, 2),
    Sketcher.Constraint("Tangent", 12, 1, 13, 1),
    Sketcher.Constraint("Tangent", 13, 2, 14, 2),
    Sketcher.Constraint("Tangent", 14, 1, 15, 1),
    Sketcher.Constraint("Tangent", 15, 2, 16, 2),
    Sketcher.Constraint("Tangent", 16, 1, 17, 1),
    Sketcher.Constraint("Tangent", 17, 2, 18, 2),
    Sketcher.Constraint("Tangent", 18, 1, 11, 1),
    Sketcher.Constraint("Horizontal", 0),
    Sketcher.Constraint("Vertical", 2),
    Sketcher.Constraint("Horizontal", 4),
    Sketcher.Constraint("Vertical", 6),
    Sketcher.Constraint("Horizontal", 11),
    Sketcher.Constraint("Vertical", 13),
    Sketcher.Constraint("Horizontal", 15),
    Sketcher.Constraint("Vertical", 17),
    Sketcher.Constraint("Equal", 1, 3),
    Sketcher.Constraint("Equal", 3, 5),
    Sketcher.Constraint("Equal", 5, 7),
    Sketcher.Constraint("Equal", 8, 9),
    Sketcher.Constraint("Equal", 9, 10),
    Sketcher.Constraint("Equal", 7, 12),
    Sketcher.Constraint("Equal", 12, 14),
    Sketcher.Constraint("Equal", 14, 16),
    Sketcher.Constraint("Equal", 16, 18),
    Sketcher.Constraint("Equal", 10, 19),
    Sketcher.Constraint("Horizontal", 8, 3, 9, 3),
    Sketcher.Constraint("Horizontal", 10, 3, 19, 3),
    Sketcher.Constraint("Vertical", 8, 3, 10, 3),
    Sketcher.Constraint("Vertical", 9, 3, 19, 3),
    Sketcher.Constraint("Radius", 1, Q("3 mm")),
    Sketcher.Constraint("Diameter", 8, Q("3.1 mm")),
    Sketcher.Constraint("DistanceX", 0, 2, 0, 1, Q("75 mm")),
    Sketcher.Constraint("DistanceX", 11, 1, 11, 2, Q("65 mm")),
    Sketcher.Constraint("DistanceY", 2, 2, 2, 1, Q("70 mm")),
    Sketcher.Constraint("DistanceY", 13, 2, 13, 1, Q("60 mm")),
    Sketcher.Constraint("DistanceX", 12, 3, 7, 3, Q("5 mm")),
    Sketcher.Constraint("DistanceY", 12, 3, 7, 3, Q("5 mm")),
    Sketcher.Constraint("DistanceX", -1, 1, 1, 3, Q("45.85 mm")),
    Sketcher.Constraint("DistanceY", -1, 1, 1, 3, Q("20.15 mm")),
    Sketcher.Constraint("DistanceX", -1, 1, 8, 3, Q("120.47132 mm")),
    Sketcher.Constraint("DistanceY", 8, 3, -1, 1, Q("49.47132 mm")),
    Sketcher.Constraint("DistanceX", -1, 1, 9, 3, Q("46.22868 mm")),
    Sketcher.Constraint("DistanceY", -1, 1, 10, 3, Q("19.77132 mm")),
])
sketch9.setExpression("Constraints[38]", "Params.sketch9_radius")
sketch9.setExpression("Constraints[39]", "Params.sketch9_diameter")
sketch9.setExpression("Constraints[40]", "Params.sketch9_width")
sketch9.setExpression("Constraints[41]", "Params.sketch9_width2")
sketch9.setExpression("Constraints[42]", "Params.sketch9_height")
pad3 = body3.newObject("PartDesign::Pad", "Pad002")
pad3.Profile = sketch9
pad3.setExpression("Length", "Params.pad3_length")

sketch10 = body3.newObject("Sketcher::SketchObject", "Sketch009")
sketch10.AttachmentSupport = (doc.getObject("XY_Plane002"), [""])
sketch10.MapMode = "FlatFace"
sketch10.AttachmentOffset = App.Placement(Vector(0, 0, 54), App.Rotation())
sketch10.addGeometry([
    Part.LineSegment(Vector(42.9, 20.1, 0), Vector(42.9, -49.9, 0)),
    Part.ArcOfCircle(Part.Circle(Vector(45.8, -49.9, 0), Vector(0, 0, 1), 3), math.radians(180), math.radians(270)),
    Part.LineSegment(Vector(45.9, -52.9, 0), Vector(67.8, -52.9, 0)),
    Part.LineSegment(Vector(67.8, -52.9, 0), Vector(67.8, 23.1, 0)),
    Part.LineSegment(Vector(67.8, 23.1, 0), Vector(45.9, 23.1, 0)),
    Part.ArcOfCircle(Part.Circle(Vector(45.8, 20.2, 0), Vector(0, 0, 1), 3), math.radians(90), math.radians(180)),
    Part.Circle(Vector(46.2, -49.5, 0), Vector(0, 0, 1), 1.6),
    Part.LineSegment(Vector(60.5, -34.1, 0), Vector(54.6, -34.1, 0)),
    Part.LineSegment(Vector(54.6, -34.1, 0), Vector(54.6, -24.1, 0)),
    Part.LineSegment(Vector(54.6, -24.1, 0), Vector(60.5, -24.1, 0)),
    Part.LineSegment(Vector(60.5, -24.1, 0), Vector(60.5, -34.1, 0)),
    Part.Circle(Vector(46.2, 19.8, 0), Vector(0, 0, 1), 1.6),
    Part.Circle(Vector(57.9, -13.6, 0), Vector(0, 0, 1), 2.5),
    Part.Circle(Vector(57.4, 2.1, 0), Vector(0, 0, 1), 2.5),
], False)
sketch10.addConstraint([
    Sketcher.Constraint("Tangent", 0, 2, 1, 1),
    Sketcher.Constraint("Tangent", 1, 2, 2, 1),
    Sketcher.Constraint("Coincident", 2, 2, 3, 1),
    Sketcher.Constraint("Coincident", 3, 2, 4, 1),
    Sketcher.Constraint("Tangent", 4, 2, 5, 1),
    Sketcher.Constraint("Tangent", 5, 2, 0, 1),
    Sketcher.Constraint("Coincident", 7, 2, 8, 1),
    Sketcher.Constraint("Coincident", 8, 2, 9, 1),
    Sketcher.Constraint("Coincident", 9, 2, 10, 1),
    Sketcher.Constraint("Coincident", 10, 2, 7, 1),
    Sketcher.Constraint("Vertical", 0),
    Sketcher.Constraint("Horizontal", 2),
    Sketcher.Constraint("Vertical", 3),
    Sketcher.Constraint("Horizontal", 4),
    Sketcher.Constraint("Horizontal", 7),
    Sketcher.Constraint("Vertical", 8),
    Sketcher.Constraint("Horizontal", 9),
    Sketcher.Constraint("Vertical", 10),
    Sketcher.Constraint("Equal", 1, 5),
    Sketcher.Constraint("Equal", 6, 11),
    Sketcher.Constraint("Equal", 12, 13),
    Sketcher.Constraint("Vertical", 6, 3, 11, 3),
    Sketcher.Constraint("Diameter", 12, Q("5 mm")),
    Sketcher.Constraint("Radius", 1, Q("3 mm")),
    Sketcher.Constraint("Diameter", 6, Q("3.1 mm")),
    Sketcher.Constraint("DistanceX", 2, 1, 2, 2, Q("22 mm")),
    Sketcher.Constraint("DistanceY", 0, 2, 0, 1, Q("70 mm")),
    Sketcher.Constraint("DistanceX", 5, 3, 12, 3, Q("12 mm")),
    Sketcher.Constraint("DistanceY", 13, 3, 5, 3, Q("18 mm")),
    Sketcher.Constraint("DistanceX", 13, 3, 12, 3, Q("0.5 mm")),
    Sketcher.Constraint("DistanceX", -1, 1, 1, 3, Q("45.85 mm")),
    Sketcher.Constraint("DistanceY", 1, 3, -1, 1, Q("49.85 mm")),
    Sketcher.Constraint("DistanceY", 12, 3, -1, 1, Q("13.58 mm")),
    Sketcher.Constraint("DistanceX", 7, 2, 7, 1, Q("5.858622 mm")),
    Sketcher.Constraint("DistanceY", 8, 1, 8, 2, Q("9.950357 mm")),
    Sketcher.Constraint("DistanceX", -1, 1, 6, 3, Q("46.22868 mm")),
    Sketcher.Constraint("DistanceY", 6, 3, -1, 1, Q("49.47132 mm")),
    Sketcher.Constraint("DistanceY", -1, 1, 11, 3, Q("19.77132 mm")),
    Sketcher.Constraint("DistanceX", -1, 1, 7, 2, Q("54.624273 mm")),
    Sketcher.Constraint("DistanceY", 7, 2, -1, 1, Q("34.063293 mm")),
])
sketch10.setExpression("Constraints[22]", "Params.sketch10_diameter")
sketch10.setExpression("Constraints[23]", "Params.sketch10_radius")
sketch10.setExpression("Constraints[24]", "Params.sketch10_diameter2")
sketch10.setExpression("Constraints[25]", "Params.sketch10_width")
sketch10.setExpression("Constraints[26]", "Params.sketch10_height")
pad4 = body3.newObject("PartDesign::Pad", "Pad003")
pad4.Profile = sketch10
pad4.setExpression("Length", "Params.pad4_length")

sketch11 = body3.newObject("Sketcher::SketchObject", "Sketch010")
sketch11.AttachmentSupport = (doc.getObject("XY_Plane002"), [""])
sketch11.MapMode = "FlatFace"
sketch11.AttachmentOffset = App.Placement(Vector(0, 0, 54), App.Rotation())
sketch11.addGeometry([
    Part.LineSegment(Vector(67.8, 23.1, 0), Vector(67.8, -52.9, 0)),
    Part.LineSegment(Vector(67.8, -52.9, 0), Vector(120.8, -52.9, 0)),
    Part.ArcOfCircle(Part.Circle(Vector(120.9, -49.9, 0), Vector(0, 0, 1), 3), math.radians(-90), math.radians(0)),
    Part.LineSegment(Vector(123.8, -49.9, 0), Vector(123.8, 20.1, 0)),
    Part.ArcOfCircle(Part.Circle(Vector(120.9, 20.2, 0), Vector(0, 0, 1), 3), math.radians(0), math.radians(90)),
    Part.LineSegment(Vector(120.8, 23.1, 0), Vector(67.8, 23.1, 0)),
    Part.Circle(Vector(120.5, -49.5, 0), Vector(0, 0, 1), 1.6),
    Part.Circle(Vector(120.5, 19.8, 0), Vector(0, 0, 1), 1.6),
    Part.ArcOfCircle(Part.Circle(Vector(115.9, 15.2, 0), Vector(0, 0, 1), 3), math.radians(0), math.radians(90)),
    Part.LineSegment(Vector(118.8, 15.2, 0), Vector(118.8, -44.9, 0)),
    Part.ArcOfCircle(Part.Circle(Vector(115.9, -44.9, 0), Vector(0, 0, 1), 3), math.radians(-90), math.radians(0)),
    Part.LineSegment(Vector(115.8, -47.9, 0), Vector(68.8, -47.9, 0)),
    Part.LineSegment(Vector(68.8, -47.9, 0), Vector(68.8, 18.1, 0)),
    Part.LineSegment(Vector(68.8, 18.1, 0), Vector(115.8, 18.1, 0)),
], False)
sketch11.addConstraint([
    Sketcher.Constraint("Coincident", 0, 2, 1, 1),
    Sketcher.Constraint("Tangent", 1, 2, 2, 1),
    Sketcher.Constraint("Tangent", 2, 2, 3, 1),
    Sketcher.Constraint("Tangent", 3, 2, 4, 1),
    Sketcher.Constraint("Tangent", 4, 2, 5, 1),
    Sketcher.Constraint("Coincident", 5, 2, 0, 1),
    Sketcher.Constraint("Tangent", 8, 1, 9, 1),
    Sketcher.Constraint("Tangent", 9, 2, 10, 2),
    Sketcher.Constraint("Tangent", 10, 1, 11, 1),
    Sketcher.Constraint("Coincident", 11, 2, 12, 1),
    Sketcher.Constraint("Coincident", 12, 2, 13, 1),
    Sketcher.Constraint("Tangent", 13, 2, 8, 2),
    Sketcher.Constraint("Vertical", 0),
    Sketcher.Constraint("Horizontal", 1),
    Sketcher.Constraint("Vertical", 3),
    Sketcher.Constraint("Horizontal", 5),
    Sketcher.Constraint("Vertical", 9),
    Sketcher.Constraint("Horizontal", 11),
    Sketcher.Constraint("Vertical", 12),
    Sketcher.Constraint("Horizontal", 13),
    Sketcher.Constraint("Equal", 2, 4),
    Sketcher.Constraint("Equal", 6, 7),
    Sketcher.Constraint("Equal", 4, 8),
    Sketcher.Constraint("Equal", 8, 10),
    Sketcher.Constraint("Vertical", 6, 3, 7, 3),
    Sketcher.Constraint("Radius", 2, Q("3 mm")),
    Sketcher.Constraint("Diameter", 6, Q("3.1 mm")),
    Sketcher.Constraint("DistanceX", 1, 1, 1, 2, Q("53 mm")),
    Sketcher.Constraint("DistanceX", 11, 2, 11, 1, Q("47 mm")),
    Sketcher.Constraint("DistanceY", 0, 2, 0, 1, Q("76 mm")),
    Sketcher.Constraint("DistanceY", 9, 2, 9, 1, Q("60 mm")),
    Sketcher.Constraint("DistanceX", 8, 3, 4, 3, Q("5 mm")),
    Sketcher.Constraint("DistanceY", 8, 3, 4, 3, Q("5 mm")),
    Sketcher.Constraint("DistanceX", -1, 1, 2, 3, Q("120.85 mm")),
    Sketcher.Constraint("DistanceY", 2, 3, -1, 1, Q("49.85 mm")),
    Sketcher.Constraint("DistanceX", -1, 1, 6, 3, Q("120.47132 mm")),
    Sketcher.Constraint("DistanceY", 6, 3, -1, 1, Q("49.47132 mm")),
    Sketcher.Constraint("DistanceY", -1, 1, 7, 3, Q("19.77132 mm")),
])
sketch11.setExpression("Constraints[25]", "Params.sketch11_radius")
sketch11.setExpression("Constraints[26]", "Params.sketch11_diameter")
sketch11.setExpression("Constraints[27]", "Params.sketch11_width")
sketch11.setExpression("Constraints[28]", "Params.sketch11_width2")
sketch11.setExpression("Constraints[29]", "Params.sketch11_height")
pad5 = body3.newObject("PartDesign::Pad", "Pad004")
pad5.Profile = sketch11
pad5.setExpression("Length", "Params.pad5_length")

sketch12 = body3.newObject("Sketcher::SketchObject", "Sketch011")
sketch12.AttachmentSupport = (doc.getObject("XY_Plane002"), [""])
sketch12.MapMode = "FlatFace"
sketch12.AttachmentOffset = App.Placement(Vector(0, 0, 63), App.Rotation())
sketch12.addGeometry([
    Part.LineSegment(Vector(67.8, -52.9, 0), Vector(120.8, -52.9, 0)),
    Part.ArcOfCircle(Part.Circle(Vector(120.9, -49.9, 0), Vector(0, 0, 1), 3), math.radians(-90), math.radians(0)),
    Part.LineSegment(Vector(123.8, -49.9, 0), Vector(123.8, 20.1, 0)),
    Part.ArcOfCircle(Part.Circle(Vector(120.9, 20.2, 0), Vector(0, 0, 1), 3), math.radians(0), math.radians(90)),
    Part.LineSegment(Vector(120.8, 23.1, 0), Vector(67.8, 23.1, 0)),
    Part.LineSegment(Vector(67.8, 23.1, 0), Vector(67.8, -52.9, 0)),
    Part.Circle(Vector(120.5, -49.5, 0), Vector(0, 0, 1), 1.6),
    Part.Circle(Vector(120.5, 19.8, 0), Vector(0, 0, 1), 1.6),
], False)
sketch12.addConstraint([
    Sketcher.Constraint("Tangent", 0, 2, 1, 1),
    Sketcher.Constraint("Tangent", 1, 2, 2, 1),
    Sketcher.Constraint("Tangent", 2, 2, 3, 1),
    Sketcher.Constraint("Tangent", 3, 2, 4, 1),
    Sketcher.Constraint("Coincident", 4, 2, 5, 1),
    Sketcher.Constraint("Coincident", 5, 2, 0, 1),
    Sketcher.Constraint("Horizontal", 0),
    Sketcher.Constraint("Vertical", 2),
    Sketcher.Constraint("Horizontal", 4),
    Sketcher.Constraint("Vertical", 5),
    Sketcher.Constraint("Equal", 1, 3),
    Sketcher.Constraint("Equal", 6, 7),
    Sketcher.Constraint("Vertical", 6, 3, 7, 3),
    Sketcher.Constraint("Radius", 1, Q("3 mm")),
    Sketcher.Constraint("Diameter", 6, Q("3.1 mm")),
    Sketcher.Constraint("DistanceX", 0, 1, 0, 2, Q("53 mm")),
    Sketcher.Constraint("DistanceY", 2, 1, 2, 2, Q("70 mm")),
    Sketcher.Constraint("DistanceX", -1, 1, 1, 3, Q("120.85 mm")),
    Sketcher.Constraint("DistanceY", 1, 3, -1, 1, Q("49.85 mm")),
    Sketcher.Constraint("DistanceX", -1, 1, 6, 3, Q("120.47132 mm")),
    Sketcher.Constraint("DistanceY", 6, 3, -1, 1, Q("49.47132 mm")),
    Sketcher.Constraint("DistanceY", -1, 1, 7, 3, Q("19.77132 mm")),
])
sketch12.setExpression("Constraints[13]", "Params.sketch12_radius")
sketch12.setExpression("Constraints[14]", "Params.sketch12_diameter")
sketch12.setExpression("Constraints[15]", "Params.sketch12_width")
sketch12.setExpression("Constraints[16]", "Params.sketch12_height")
pad6 = body3.newObject("PartDesign::Pad", "Pad005")
pad6.Profile = sketch12
pad6.setExpression("Length", "Params.pad6_length")
doc.recompute()

fillet3 = body3.newObject("PartDesign::Fillet", "Fillet002")
fillet3.Base = (pad6, edges_at(pad6, [(67.85, -14.85, 55)]))
fillet3.setExpression("Radius", "Params.fillet3_radius")
doc.recompute()

fillet4 = body3.newObject("PartDesign::Fillet", "Fillet003")
fillet4.Base = (fillet3, edges_at(fillet3, [(67.85, -14.85, 64)]))
fillet4.setExpression("Radius", "Params.fillet4_radius")
doc.recompute()

chamfer2 = body3.newObject("PartDesign::Chamfer", "Chamfer001")
chamfer2.Base = (fillet4, edges_at(fillet4, [
    (122.971, -51.971, 64),
    (123.85, -14.85, 64),
    (122.971, 22.271, 64),
    (95.35, 23.15, 64),
    (55.85, 23.15, 55),
    (67.264, 23.15, 55.586),
    (67.264, -52.85, 55.586),
    (95.35, -52.85, 64),
    (67.85, -52.85, 59.5),
    (68.436, -52.85, 63.414),
    (67.85, 23.15, 59.5),
    (68.436, 23.15, 63.414),
    (43.729, 22.271, 55),
    (42.85, -14.85, 55),
    (43.729, -51.971, 55),
    (55.85, -52.85, 55),
]))
chamfer2.setExpression("Size", "Params.chamfer2_size")

doc.recompute()
